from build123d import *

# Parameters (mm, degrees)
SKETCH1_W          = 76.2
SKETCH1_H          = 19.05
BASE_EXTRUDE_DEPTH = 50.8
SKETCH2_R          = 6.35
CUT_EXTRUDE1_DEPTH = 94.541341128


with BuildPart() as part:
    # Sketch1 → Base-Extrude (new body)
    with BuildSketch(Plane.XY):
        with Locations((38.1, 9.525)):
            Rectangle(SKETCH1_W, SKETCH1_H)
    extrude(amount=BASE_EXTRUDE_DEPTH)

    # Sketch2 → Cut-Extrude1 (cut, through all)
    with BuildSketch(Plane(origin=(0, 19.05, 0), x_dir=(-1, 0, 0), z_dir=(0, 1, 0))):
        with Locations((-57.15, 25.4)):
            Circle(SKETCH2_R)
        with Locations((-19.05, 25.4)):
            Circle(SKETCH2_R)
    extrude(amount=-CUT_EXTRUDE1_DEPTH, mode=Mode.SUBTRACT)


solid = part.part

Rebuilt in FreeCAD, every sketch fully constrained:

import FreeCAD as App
import Part
import Sketcher

V = App.Vector
Q = App.Units.Quantity

doc = App.newDocument("Part")
body = doc.addObject("PartDesign::Body", "Body")

# Sketch on XY plane
sketch1 = body.newObject("Sketcher::SketchObject", "Sketch")
sketch1.AttachmentSupport = (doc.getObject("XY_Plane"), [""])
sketch1.MapMode = "FlatFace"
sketch1.addGeometry([
    Part.LineSegment(V(0, 19, 0), V(0, 0, 0)),
    Part.LineSegment(V(0, 0, 0), V(76, 0, 0)),
    Part.LineSegment(V(76, 0, 0), V(76, 19, 0)),
    Part.LineSegment(V(76, 19, 0), V(0, 19, 0)),
], False)
sketch1.addConstraint([
    Sketcher.Constraint("Coincident", 0, 2, 1, 1),
    Sketcher.Constraint("Coincident", 1, 2, 2, 1),
    Sketcher.Constraint("Coincident", 2, 2, 3, 1),
    Sketcher.Constraint("Coincident", 3, 2, 0, 1),
    Sketcher.Constraint("Vertical", 0),
    Sketcher.Constraint("Horizontal", 1),
    Sketcher.Constraint("Vertical", 2),
    Sketcher.Constraint("Horizontal", 3),
    Sketcher.Constraint("Coincident", 0, 2, -1, 1),
    Sketcher.Constraint("DistanceX", 1, 1, 1, 2, Q("3 in")),
    Sketcher.Constraint("DistanceY", 0, 2, 0, 1, Q("0.75 in")),
])
pad1 = body.newObject("PartDesign::Pad", "Pad")
pad1.Profile = sketch1
pad1.Length = Q("2 in")

# Sketch on XZ plane
sketch2 = body.newObject("Sketcher::SketchObject", "Sketch001")
sketch2.AttachmentSupport = (doc.getObject("XZ_Plane"), [""])
sketch2.MapMode = "FlatFace"
sketch2.AttachmentOffset = App.Placement(V(0, 0, -0.75 * 25.4), App.Rotation())
sketch2.addGeometry([
    Part.Circle(V(57, 25, 0), V(0, 0, 1), 6),
    Part.Circle(V(19, 25, 0), V(0, 0, 1), 6),
], False)
sketch2.addConstraint([
    Sketcher.Constraint("Equal", 0, 1),
    Sketcher.Constraint("Horizontal", 0, 3, 1, 3),
    Sketcher.Constraint("Diameter", 0, Q("0.5 in")),
    Sketcher.Constraint("DistanceY", -1, 1, 0, 3, Q("1 in")),
    Sketcher.Constraint("DistanceX", 1, 3, 0, 3, Q("1.5 in")),
    Sketcher.Constraint("DistanceX", -1, 1, 0, 3, Q("2.25 in")),
])
pocket1 = body.newObject("PartDesign::Pocket", "Pocket")
pocket1.Profile = sketch2
pocket1.Type = "ThroughAll"
pocket1.Reversed = True

doc.recompute()
